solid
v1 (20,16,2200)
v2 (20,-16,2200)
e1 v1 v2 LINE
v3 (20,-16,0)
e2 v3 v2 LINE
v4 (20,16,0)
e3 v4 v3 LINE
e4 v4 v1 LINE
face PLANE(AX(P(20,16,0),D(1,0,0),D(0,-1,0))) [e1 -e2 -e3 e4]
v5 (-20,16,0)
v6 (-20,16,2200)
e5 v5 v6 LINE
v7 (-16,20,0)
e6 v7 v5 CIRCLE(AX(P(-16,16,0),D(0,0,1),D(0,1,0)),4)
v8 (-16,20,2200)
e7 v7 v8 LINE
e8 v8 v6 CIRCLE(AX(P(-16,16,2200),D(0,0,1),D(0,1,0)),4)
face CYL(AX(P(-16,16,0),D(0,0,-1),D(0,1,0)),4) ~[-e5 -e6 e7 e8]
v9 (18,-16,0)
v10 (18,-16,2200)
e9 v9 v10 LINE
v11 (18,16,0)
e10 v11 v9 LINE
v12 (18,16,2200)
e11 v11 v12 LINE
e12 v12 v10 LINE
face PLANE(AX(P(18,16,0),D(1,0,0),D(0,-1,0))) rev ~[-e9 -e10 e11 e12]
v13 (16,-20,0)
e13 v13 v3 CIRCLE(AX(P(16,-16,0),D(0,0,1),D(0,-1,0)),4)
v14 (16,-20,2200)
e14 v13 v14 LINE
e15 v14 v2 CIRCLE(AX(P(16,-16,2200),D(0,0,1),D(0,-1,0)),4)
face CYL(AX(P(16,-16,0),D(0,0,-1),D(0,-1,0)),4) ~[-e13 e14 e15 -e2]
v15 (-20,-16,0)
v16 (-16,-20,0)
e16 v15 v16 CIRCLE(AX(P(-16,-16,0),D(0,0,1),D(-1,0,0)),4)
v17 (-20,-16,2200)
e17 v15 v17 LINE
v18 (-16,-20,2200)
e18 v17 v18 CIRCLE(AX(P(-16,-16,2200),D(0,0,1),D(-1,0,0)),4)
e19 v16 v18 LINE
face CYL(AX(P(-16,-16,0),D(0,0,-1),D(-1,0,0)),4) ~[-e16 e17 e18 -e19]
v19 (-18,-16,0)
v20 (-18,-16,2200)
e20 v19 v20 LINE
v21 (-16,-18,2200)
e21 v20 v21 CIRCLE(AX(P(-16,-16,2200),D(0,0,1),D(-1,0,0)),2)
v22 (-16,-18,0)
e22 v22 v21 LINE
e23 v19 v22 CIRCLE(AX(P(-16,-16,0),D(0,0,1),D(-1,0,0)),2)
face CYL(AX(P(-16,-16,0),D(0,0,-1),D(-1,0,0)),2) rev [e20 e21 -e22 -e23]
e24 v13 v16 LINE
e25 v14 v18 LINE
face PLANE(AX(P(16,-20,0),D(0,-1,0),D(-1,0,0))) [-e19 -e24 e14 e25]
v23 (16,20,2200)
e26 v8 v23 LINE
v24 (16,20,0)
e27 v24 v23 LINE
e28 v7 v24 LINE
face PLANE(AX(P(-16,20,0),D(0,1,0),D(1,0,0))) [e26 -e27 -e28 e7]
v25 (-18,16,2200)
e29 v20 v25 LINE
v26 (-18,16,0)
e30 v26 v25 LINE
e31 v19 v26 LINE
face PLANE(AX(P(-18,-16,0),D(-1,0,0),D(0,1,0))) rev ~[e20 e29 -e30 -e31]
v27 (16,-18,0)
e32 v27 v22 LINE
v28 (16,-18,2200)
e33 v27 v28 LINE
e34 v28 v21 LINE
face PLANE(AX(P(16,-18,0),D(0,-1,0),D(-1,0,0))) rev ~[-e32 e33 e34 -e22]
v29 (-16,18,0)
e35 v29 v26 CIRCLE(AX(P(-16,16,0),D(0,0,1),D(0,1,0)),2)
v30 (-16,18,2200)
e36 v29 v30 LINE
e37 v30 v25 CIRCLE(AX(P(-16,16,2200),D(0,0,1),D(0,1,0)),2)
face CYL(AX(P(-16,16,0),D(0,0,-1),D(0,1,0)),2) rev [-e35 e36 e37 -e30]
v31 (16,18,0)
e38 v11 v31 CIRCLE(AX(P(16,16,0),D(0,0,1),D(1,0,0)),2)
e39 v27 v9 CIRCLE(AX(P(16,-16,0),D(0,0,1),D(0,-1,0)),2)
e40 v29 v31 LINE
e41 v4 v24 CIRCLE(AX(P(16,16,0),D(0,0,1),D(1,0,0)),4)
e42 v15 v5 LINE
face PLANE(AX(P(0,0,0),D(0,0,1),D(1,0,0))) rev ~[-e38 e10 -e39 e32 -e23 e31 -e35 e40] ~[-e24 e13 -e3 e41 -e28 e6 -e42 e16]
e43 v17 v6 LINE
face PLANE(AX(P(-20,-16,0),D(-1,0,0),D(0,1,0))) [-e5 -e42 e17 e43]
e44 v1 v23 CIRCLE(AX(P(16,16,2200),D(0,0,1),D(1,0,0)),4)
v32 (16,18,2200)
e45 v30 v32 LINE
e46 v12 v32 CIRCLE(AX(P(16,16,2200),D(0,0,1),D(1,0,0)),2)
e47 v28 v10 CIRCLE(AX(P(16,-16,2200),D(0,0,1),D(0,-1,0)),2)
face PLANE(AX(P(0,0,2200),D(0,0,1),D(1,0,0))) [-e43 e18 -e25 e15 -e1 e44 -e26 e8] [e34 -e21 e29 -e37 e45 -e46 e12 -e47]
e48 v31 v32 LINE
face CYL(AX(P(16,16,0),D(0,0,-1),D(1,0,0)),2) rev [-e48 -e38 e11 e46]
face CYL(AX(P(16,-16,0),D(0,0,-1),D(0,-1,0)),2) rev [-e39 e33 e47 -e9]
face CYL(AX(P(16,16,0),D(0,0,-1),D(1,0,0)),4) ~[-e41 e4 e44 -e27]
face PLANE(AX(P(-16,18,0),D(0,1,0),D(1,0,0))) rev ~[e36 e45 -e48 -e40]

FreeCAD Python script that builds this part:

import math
import FreeCAD as App
import Part
import Sketcher
from FreeCAD import Vector

doc = App.newDocument("Part")
params = doc.addObject("Spreadsheet::Sheet", "Params")
for row, (alias, value) in enumerate([
    ("sketch1_radius", "4 mm"),
    ("sketch1_radius2", "2 mm"),
    ("pad1_length", "2200 mm"),
], start=1):
    params.set(f"A{row}", alias)
    params.set(f"B{row}", "=" + value)
    params.setAlias(f"B{row}", alias)

body = doc.addObject("PartDesign::Body", "Body")

sketch1 = body.newObject("Sketcher::SketchObject", "Sketch")
sketch1.AttachmentSupport = (doc.getObject("XY_Plane"), [""])
sketch1.MapMode = "FlatFace"
sketch1.addGeometry([
    Part.LineSegment(Vector(-20, 16, 0), Vector(-20, -16, 0)),
    Part.ArcOfCircle(Part.Circle(Vector(-16, -16, 0), Vector(0, 0, 1), 4), math.radians(180), math.radians(270)),
    Part.LineSegment(Vector(-16, -20, 0), Vector(16, -20, 0)),
    Part.ArcOfCircle(Part.Circle(Vector(16, -16, 0), Vector(0, 0, 1), 4), math.radians(-90), math.radians(0)),
    Part.LineSegment(Vector(20, -16, 0), Vector(20, 16, 0)),
    Part.ArcOfCircle(Part.Circle(Vector(16, 16, 0), Vector(0, 0, 1), 4), math.radians(0), math.radians(90)),
    Part.LineSegment(Vector(16, 20, 0), Vector(-16, 20, 0)),
    Part.ArcOfCircle(Part.Circle(Vector(-16, 16, 0), Vector(0, 0, 1), 4), math.radians(90), math.radians(180)),
    Part.ArcOfCircle(Part.Circle(Vector(-16, 16, 0), Vector(0, 0, 1), 2), math.radians(90), math.radians(180)),
    Part.LineSegment(Vector(-16, 18, 0), Vector(16, 18, 0)),
    Part.ArcOfCircle(Part.Circle(Vector(16, 16, 0), Vector(0, 0, 1), 2), math.radians(0), math.radians(90)),
    Part.LineSegment(Vector(18, 16, 0), Vector(18, -16, 0)),
    Part.ArcOfCircle(Part.Circle(Vector(16, -16, 0), Vector(0, 0, 1), 2), math.radians(-90), math.radians(0)),
    Part.LineSegment(Vector(16, -18, 0), Vector(-16, -18, 0)),
    Part.ArcOfCircle(Part.Circle(Vector(-16, -16, 0), Vector(0, 0, 1), 2), math.radians(180), math.radians(270)),
    Part.LineSegment(Vector(-18, -16, 0), Vector(-18, 16, 0)),
], False)
sketch1.addConstraint([
    Sketcher.Constraint("Tangent", 0, 2, 1, 1),
    Sketcher.Constraint("Tangent", 1, 2, 2, 1),
    Sketcher.Constraint("Tangent", 2, 2, 3, 1),
    Sketcher.Constraint("Tangent", 3, 2, 4, 1),
    Sketcher.Constraint("Tangent", 4, 2, 5, 1),
    Sketcher.Constraint("Tangent", 5, 2, 6, 1),
    Sketcher.Constraint("Tangent", 6, 2, 7, 1),
    Sketcher.Constraint("Tangent", 7, 2, 0, 1),
    Sketcher.Constraint("Tangent", 8, 1, 9, 1),
    Sketcher.Constraint("Tangent", 9, 2, 10, 2),
    Sketcher.Constraint("Tangent", 10, 1, 11, 1),
    Sketcher.Constraint("Tangent", 11, 2, 12, 2),
    Sketcher.Constraint("Tangent", 12, 1, 13, 1),
    Sketcher.Constraint("Tangent", 13, 2, 14, 2),
    Sketcher.Constraint("Tangent", 14, 1, 15, 1),
    Sketcher.Constraint("Tangent", 15, 2, 8, 2),
    Sketcher.Constraint("Vertical", 0),
    Sketcher.Constraint("Horizontal", 2),
    Sketcher.Constraint("Vertical", 4),
    Sketcher.Constraint("Horizontal", 6),
    Sketcher.Constraint("Horizontal", 9),
    Sketcher.Constraint("Vertical", 11),
    Sketcher.Constraint("Horizontal", 13),
    Sketcher.Constraint("Vertical", 15),
    Sketcher.Constraint("Coincident", 8, 3, 7, 3),
    Sketcher.Constraint("Coincident", 10, 3, 5, 3),
    Sketcher.Constraint("Coincident", 12, 3, 3, 3),
    Sketcher.Constraint("Equal", 1, 3),
    Sketcher.Constraint("Equal", 3, 5),
    Sketcher.Constraint("Equal", 5, 7),
    Sketcher.Constraint("Equal", 12, 14),
    Sketcher.Constraint("Symmetric", 1, 3, 5, 3, -1, 1),
    Sketcher.Constraint("Equal", 13, 0),
    Sketcher.Constraint("Radius", 1, 4.0),
    Sketcher.Constraint("Radius", 8, 2.0),
    Sketcher.Constraint("DistanceX", 0, 2, -1, 1, 20.0),
])
sketch1.setExpression("Constraints[33]", "Params.sketch1_radius")
sketch1.setExpression("Constraints[34]", "Params.sketch1_radius2")
pad1 = body.newObject("PartDesign::Pad", "Pad")
pad1.Profile = sketch1
pad1.setExpression("Length", "Params.pad1_length")

doc.recompute()
